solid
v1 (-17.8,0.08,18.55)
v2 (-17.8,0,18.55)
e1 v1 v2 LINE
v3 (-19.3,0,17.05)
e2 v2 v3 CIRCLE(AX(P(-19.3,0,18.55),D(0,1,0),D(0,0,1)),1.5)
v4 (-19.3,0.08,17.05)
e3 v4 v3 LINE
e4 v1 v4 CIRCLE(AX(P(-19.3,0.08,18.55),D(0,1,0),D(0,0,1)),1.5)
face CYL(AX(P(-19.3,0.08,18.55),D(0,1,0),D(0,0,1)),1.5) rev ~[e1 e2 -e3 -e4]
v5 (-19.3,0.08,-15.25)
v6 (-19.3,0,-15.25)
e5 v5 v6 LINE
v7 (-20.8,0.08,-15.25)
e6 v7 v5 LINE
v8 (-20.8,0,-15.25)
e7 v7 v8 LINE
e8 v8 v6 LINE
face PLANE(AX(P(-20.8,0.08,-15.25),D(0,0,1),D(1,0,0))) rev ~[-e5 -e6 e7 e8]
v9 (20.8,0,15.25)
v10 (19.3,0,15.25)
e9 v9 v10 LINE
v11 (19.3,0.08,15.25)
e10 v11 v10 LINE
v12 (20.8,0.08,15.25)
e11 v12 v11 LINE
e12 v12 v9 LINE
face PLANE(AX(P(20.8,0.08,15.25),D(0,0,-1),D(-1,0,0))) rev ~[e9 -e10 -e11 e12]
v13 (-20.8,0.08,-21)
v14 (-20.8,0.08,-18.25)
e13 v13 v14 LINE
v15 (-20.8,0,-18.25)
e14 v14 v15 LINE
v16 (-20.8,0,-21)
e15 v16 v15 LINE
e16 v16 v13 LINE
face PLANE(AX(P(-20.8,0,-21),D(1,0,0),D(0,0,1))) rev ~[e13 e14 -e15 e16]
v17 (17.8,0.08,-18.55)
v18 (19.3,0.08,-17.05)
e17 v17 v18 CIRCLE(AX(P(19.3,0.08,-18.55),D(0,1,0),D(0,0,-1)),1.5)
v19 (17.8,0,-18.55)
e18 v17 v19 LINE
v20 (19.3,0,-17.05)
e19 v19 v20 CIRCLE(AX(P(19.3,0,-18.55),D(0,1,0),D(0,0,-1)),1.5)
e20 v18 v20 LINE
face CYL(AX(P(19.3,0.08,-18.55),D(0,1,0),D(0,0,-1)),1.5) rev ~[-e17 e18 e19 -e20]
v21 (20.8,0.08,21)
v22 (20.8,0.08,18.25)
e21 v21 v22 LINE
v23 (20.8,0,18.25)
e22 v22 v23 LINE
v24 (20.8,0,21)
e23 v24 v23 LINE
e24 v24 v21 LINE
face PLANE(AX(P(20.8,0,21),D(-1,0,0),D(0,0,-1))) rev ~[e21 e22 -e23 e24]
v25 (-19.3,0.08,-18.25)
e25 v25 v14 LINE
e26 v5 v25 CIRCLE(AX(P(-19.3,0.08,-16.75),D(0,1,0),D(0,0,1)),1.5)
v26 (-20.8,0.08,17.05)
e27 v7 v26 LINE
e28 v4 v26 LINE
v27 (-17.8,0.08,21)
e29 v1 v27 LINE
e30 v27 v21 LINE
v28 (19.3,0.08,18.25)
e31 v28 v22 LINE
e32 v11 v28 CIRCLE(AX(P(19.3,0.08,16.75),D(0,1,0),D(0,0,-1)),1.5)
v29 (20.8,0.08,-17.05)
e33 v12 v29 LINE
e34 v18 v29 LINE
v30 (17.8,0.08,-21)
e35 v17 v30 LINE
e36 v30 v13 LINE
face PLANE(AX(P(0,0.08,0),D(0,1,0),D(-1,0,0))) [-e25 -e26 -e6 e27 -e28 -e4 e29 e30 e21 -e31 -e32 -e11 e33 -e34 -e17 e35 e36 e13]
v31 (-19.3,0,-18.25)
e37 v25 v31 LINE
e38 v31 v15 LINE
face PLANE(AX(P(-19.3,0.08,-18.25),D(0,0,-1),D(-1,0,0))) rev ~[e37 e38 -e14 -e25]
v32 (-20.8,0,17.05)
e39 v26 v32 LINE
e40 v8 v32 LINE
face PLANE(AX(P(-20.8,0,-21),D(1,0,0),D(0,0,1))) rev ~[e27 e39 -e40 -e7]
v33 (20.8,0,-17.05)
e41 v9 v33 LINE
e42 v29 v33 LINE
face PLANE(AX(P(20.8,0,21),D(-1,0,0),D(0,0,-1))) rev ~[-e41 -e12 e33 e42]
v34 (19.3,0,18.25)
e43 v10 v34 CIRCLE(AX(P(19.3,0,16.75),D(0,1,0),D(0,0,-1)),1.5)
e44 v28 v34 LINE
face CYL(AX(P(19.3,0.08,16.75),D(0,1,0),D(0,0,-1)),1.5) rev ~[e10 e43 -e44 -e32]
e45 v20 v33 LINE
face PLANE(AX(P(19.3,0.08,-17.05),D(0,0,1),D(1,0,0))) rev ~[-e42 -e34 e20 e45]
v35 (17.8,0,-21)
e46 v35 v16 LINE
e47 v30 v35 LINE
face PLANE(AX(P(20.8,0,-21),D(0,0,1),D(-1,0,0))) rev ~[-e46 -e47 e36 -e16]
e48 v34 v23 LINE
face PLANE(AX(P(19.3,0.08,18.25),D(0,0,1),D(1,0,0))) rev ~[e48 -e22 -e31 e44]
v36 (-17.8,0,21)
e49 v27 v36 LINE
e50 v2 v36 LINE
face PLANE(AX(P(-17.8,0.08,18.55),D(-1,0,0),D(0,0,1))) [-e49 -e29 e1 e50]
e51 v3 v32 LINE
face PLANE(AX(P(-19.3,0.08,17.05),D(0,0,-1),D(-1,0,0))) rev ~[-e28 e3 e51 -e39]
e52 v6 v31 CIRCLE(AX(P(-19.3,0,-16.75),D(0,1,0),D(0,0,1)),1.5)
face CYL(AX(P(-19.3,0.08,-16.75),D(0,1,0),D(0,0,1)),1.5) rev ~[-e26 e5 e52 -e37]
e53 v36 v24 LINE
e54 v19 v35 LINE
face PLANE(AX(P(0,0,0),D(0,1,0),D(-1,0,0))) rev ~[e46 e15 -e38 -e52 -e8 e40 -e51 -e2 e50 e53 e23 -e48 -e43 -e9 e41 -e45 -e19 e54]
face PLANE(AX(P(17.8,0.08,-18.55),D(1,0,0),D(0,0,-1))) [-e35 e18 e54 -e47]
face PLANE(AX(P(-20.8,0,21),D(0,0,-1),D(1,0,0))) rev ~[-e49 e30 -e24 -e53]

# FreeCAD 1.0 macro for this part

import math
import FreeCAD as App
import Part
import Sketcher
from FreeCAD import Vector
Q = App.Units.Quantity

doc = App.newDocument("Part")
params = doc.addObject("Spreadsheet::Sheet", "Params")
for row, (alias, value) in enumerate([
    ("sketch1_height", "42 mm"),
    ("sketch1_width", "41.6 mm"),
    ("pad1_length", "0.08 mm"),
    ("sketch2_radius", "1.5 mm"),
    ("sketch2_width", "1.5 mm"),
    ("pocket1_length", "0.08 mm"),
    ("sketch3_radius", "1.5 mm"),
    ("sketch3_width", "3 mm"),
    ("sketch3_height", "0.95 mm"),
    ("pocket2_length", "0.08 mm"),
], start=1):
    params.set(f"A{row}", alias)
    params.set(f"B{row}", "=" + value)
    params.setAlias(f"B{row}", alias)

body = doc.addObject("PartDesign::Body", "Body")

# Sketch on XZ plane
sketch1 = body.newObject("Sketcher::SketchObject", "Sketch")
sketch1.AttachmentSupport = (doc.getObject("XZ_Plane"), [""])
sketch1.MapMode = "FlatFace"
sketch1.addGeometry(Part.LineSegment(Vector(21, 21, 0), Vector(21, -21, 0)), False)
sketch1.addGeometry(Part.LineSegment(Vector(21, -21, 0), Vector(-21, -21, 0)), False)
sketch1.addGeometry(Part.LineSegment(Vector(-21, -21, 0), Vector(-21, 21, 0)), False)
sketch1.addGeometry(Part.LineSegment(Vector(-21, 21, 0), Vector(21, 21, 0)), False)
sketch1.addConstraint(Sketcher.Constraint("Coincident", 0, 2, 1, 1))
sketch1.addConstraint(Sketcher.Constraint("Coincident", 1, 2, 2, 1))
sketch1.addConstraint(Sketcher.Constraint("Coincident", 2, 2, 3, 1))
sketch1.addConstraint(Sketcher.Constraint("Coincident", 3, 2, 0, 1))
sketch1.addConstraint(Sketcher.Constraint("Vertical", 0))
sketch1.addConstraint(Sketcher.Constraint("Horizontal", 1))
sketch1.addConstraint(Sketcher.Constraint("Vertical", 2))
sketch1.addConstraint(Sketcher.Constraint("Horizontal", 3))
sketch1.addConstraint(Sketcher.Constraint("Symmetric", 0, 2, 2, 2, -1, 1))
sketch1.addConstraint(Sketcher.Constraint("DistanceY", 0, 2, 0, 1, Q("42 mm")))
sketch1.addConstraint(Sketcher.Constraint("DistanceX", 1, 2, 1, 1, Q("41.6 mm")))
sketch1.setExpression("Constraints[9]", "Params.sketch1_height")
sketch1.setExpression("Constraints[10]", "Params.sketch1_width")
pad1 = body.newObject("PartDesign::Pad", "Pad")
pad1.Profile = sketch1
pad1.setExpression("Length", "Params.pad1_length")
pad1.Reversed = True

# Sketch on XZ plane
sketch2 = body.newObject("Sketcher::SketchObject", "Sketch001")
sketch2.AttachmentSupport = (doc.getObject("XZ_Plane"), [""])
sketch2.MapMode = "FlatFace"
sketch2.AttachmentOffset = App.Placement(Vector(0, 0, -0.08), App.Rotation())
sketch2.addGeometry(Part.LineSegment(Vector(-19.3, -18.2, 0), Vector(-20.8, -18.2, 0)), False)
sketch2.addGeometry(Part.LineSegment(Vector(-20.8, -18.2, 0), Vector(-20.8, -15.2, 0)), False)
sketch2.addGeometry(Part.LineSegment(Vector(-20.8, -15.2, 0), Vector(-19.3, -15.2, 0)), False)
sketch2.addGeometry(Part.ArcOfCircle(Part.Circle(Vector(-19.3, -16.8, 0), Vector(0, 0, 1), 1.5), math.radians(-90), math.radians(90)), False)
sketch2.addGeometry(Part.LineSegment(Vector(20.8, -17.1, 0), Vector(20.8, -20.1, 0)), False)
sketch2.addGeometry(Part.LineSegment(Vector(20.8, -20.1, 0), Vector(19.3, -20.1, 0)), False)
sketch2.addGeometry(Part.ArcOfCircle(Part.Circle(Vector(19.3, -18.6, 0), Vector(0, 0, 1), 1.5), math.radians(90), math.radians(270)), False)
sketch2.addGeometry(Part.LineSegment(Vector(19.3, -17.1, 0), Vector(20.8, -17.1, 0)), False)
sketch2.addGeometry(Part.LineSegment(Vector(-19.3, 17.1, 0), Vector(-20.8, 17.1, 0)), False)
sketch2.addGeometry(Part.LineSegment(Vector(-20.8, 17.1, 0), Vector(-20.8, 20.1, 0)), False)
sketch2.addGeometry(Part.LineSegment(Vector(-20.8, 20.1, 0), Vector(-19.3, 20.1, 0)), False)
sketch2.addGeometry(Part.ArcOfCircle(Part.Circle(Vector(-19.3, 18.6, 0), Vector(0, 0, 1), 1.5), math.radians(-90), math.radians(90)), False)
sketch2.addGeometry(Part.LineSegment(Vector(20.8, 18.2, 0), Vector(20.8, 15.2, 0)), False)
sketch2.addGeometry(Part.LineSegment(Vector(20.8, 15.2, 0), Vector(19.3, 15.2, 0)), False)
sketch2.addGeometry(Part.ArcOfCircle(Part.Circle(Vector(19.3, 16.8, 0), Vector(0, 0, 1), 1.5), math.radians(90), math.radians(270)), False)
sketch2.addGeometry(Part.LineSegment(Vector(19.3, 18.2, 0), Vector(20.8, 18.2, 0)), False)
sketch2.addConstraint(Sketcher.Constraint("Coincident", 0, 2, 1, 1))
sketch2.addConstraint(Sketcher.Constraint("Coincident", 1, 2, 2, 1))
sketch2.addConstraint(Sketcher.Constraint("Tangent", 2, 2, 3, 2))
sketch2.addConstraint(Sketcher.Constraint("Tangent", 3, 1, 0, 1))
sketch2.addConstraint(Sketcher.Constraint("Coincident", 4, 2, 5, 1))
sketch2.addConstraint(Sketcher.Constraint("Tangent", 5, 2, 6, 2))
sketch2.addConstraint(Sketcher.Constraint("Tangent", 6, 1, 7, 1))
sketch2.addConstraint(Sketcher.Constraint("Coincident", 7, 2, 4, 1))
sketch2.addConstraint(Sketcher.Constraint("Coincident", 8, 2, 9, 1))
sketch2.addConstraint(Sketcher.Constraint("Coincident", 9, 2, 10, 1))
sketch2.addConstraint(Sketcher.Constraint("Tangent", 10, 2, 11, 2))
sketch2.addConstraint(Sketcher.Constraint("Tangent", 11, 1, 8, 1))
sketch2.addConstraint(Sketcher.Constraint("Coincident", 12, 2, 13, 1))
sketch2.addConstraint(Sketcher.Constraint("Tangent", 13, 2, 14, 2))
sketch2.addConstraint(Sketcher.Constraint("Tangent", 14, 1, 15, 1))
sketch2.addConstraint(Sketcher.Constraint("Coincident", 15, 2, 12, 1))
sketch2.addConstraint(Sketcher.Constraint("Horizontal", 0))
sketch2.addConstraint(Sketcher.Constraint("Vertical", 1))
sketch2.addConstraint(Sketcher.Constraint("Horizontal", 2))
sketch2.addConstraint(Sketcher.Constraint("Vertical", 4))
sketch2.addConstraint(Sketcher.Constraint("Horizontal", 5))
sketch2.addConstraint(Sketcher.Constraint("Horizontal", 7))
sketch2.addConstraint(Sketcher.Constraint("Horizontal", 8))
sketch2.addConstraint(Sketcher.Constraint("Vertical", 9))
sketch2.addConstraint(Sketcher.Constraint("Horizontal", 10))
sketch2.addConstraint(Sketcher.Constraint("Vertical", 12))
sketch2.addConstraint(Sketcher.Constraint("Horizontal", 13))
sketch2.addConstraint(Sketcher.Constraint("Horizontal", 15))
sketch2.addConstraint(Sketcher.Constraint("Equal", 3, 6))
sketch2.addConstraint(Sketcher.Constraint("Equal", 6, 11))
sketch2.addConstraint(Sketcher.Constraint("Equal", 11, 14))
sketch2.addConstraint(Sketcher.Constraint("Symmetric", 6, 3, 11, 3, -1, 1))
sketch2.addConstraint(Sketcher.Constraint("Symmetric", 3, 3, 14, 3, -1, 1))
sketch2.addConstraint(Sketcher.Constraint("Vertical", 3, 3, 11, 3))
sketch2.addConstraint(Sketcher.Constraint("Vertical", 1, 2, 8, 2))
sketch2.addConstraint(Sketcher.Constraint("Vertical", 7, 2, 12, 2))
sketch2.addConstraint(Sketcher.Constraint("Equal", 2, 5))
sketch2.addConstraint(Sketcher.Constraint("Radius", 3, Q("1.5 mm")))
sketch2.addConstraint(Sketcher.Constraint("DistanceX", 0, 2, 0, 1, Q("1.5 mm")))
sketch2.addConstraint(Sketcher.Constraint("DistanceX", 0, 2, -1, 1, Q("20.8 mm")))
sketch2.addConstraint(Sketcher.Constraint("DistanceY", 0, 2, 14, 3, Q("35 mm")))
sketch2.addConstraint(Sketcher.Constraint("DistanceY", 6, 3, 3, 3, Q("1.8 mm")))
sketch2.setExpression("Constraints[37]", "Params.sketch2_radius")
sketch2.setExpression("Constraints[38]", "Params.sketch2_width")
pocket1 = body.newObject("PartDesign::Pocket", "Pocket")
pocket1.Profile = sketch2
pocket1.setExpression("Length", "Params.pocket1_length")
pocket1.Reversed = True

# Sketch on XZ plane
sketch3 = body.newObject("Sketcher::SketchObject", "Sketch002")
sketch3.AttachmentSupport = (doc.getObject("XZ_Plane"), [""])
sketch3.MapMode = "FlatFace"
sketch3.AttachmentOffset = App.Placement(Vector(0, 0, -0.08), App.Rotation())
sketch3.addGeometry(Part.ArcOfCircle(Part.Circle(Vector(19.3, -18.6, 0), Vector(0, 0, 1), 1.5), math.radians(180), math.radians(270)), False)
sketch3.addGeometry(Part.LineSegment(Vector(19.3, -20.1, 0), Vector(20.8, -20.1, 0)), False)
sketch3.addGeometry(Part.LineSegment(Vector(20.8, -20.1, 0), Vector(20.8, -21, 0)), False)
sketch3.addGeometry(Part.LineSegment(Vector(20.8, -21, 0), Vector(17.8, -21, 0)), False)
sketch3.addGeometry(Part.LineSegment(Vector(17.8, -21, 0), Vector(17.8, -18.6, 0)), False)
sketch3.addGeometry(Part.ArcOfCircle(Part.Circle(Vector(-19.3, 18.6, 0), Vector(0, 0, 1), 1.5), math.radians(0), math.radians(90)), False)
sketch3.addGeometry(Part.LineSegment(Vector(-19.3, 20.1, 0), Vector(-20.8, 20.1, 0)), False)
sketch3.addGeometry(Part.LineSegment(Vector(-20.8, 20.1, 0), Vector(-20.8, 21, 0)), False)
sketch3.addGeometry(Part.LineSegment(Vector(-20.8, 21, 0), Vector(-17.8, 21, 0)), False)
sketch3.addGeometry(Part.LineSegment(Vector(-17.8, 21, 0), Vector(-17.8, 18.6, 0)), False)
sketch3.addConstraint(Sketcher.Constraint("Tangent", 0, 2, 1, 1))
sketch3.addConstraint(Sketcher.Constraint("Coincident", 1, 2, 2, 1))
sketch3.addConstraint(Sketcher.Constraint("Coincident", 2, 2, 3, 1))
sketch3.addConstraint(Sketcher.Constraint("Coincident", 3, 2, 4, 1))
sketch3.addConstraint(Sketcher.Constraint("Tangent", 4, 2, 0, 1))
sketch3.addConstraint(Sketcher.Constraint("Tangent", 5, 2, 6, 1))
sketch3.addConstraint(Sketcher.Constraint("Coincident", 6, 2, 7, 1))
sketch3.addConstraint(Sketcher.Constraint("Coincident", 7, 2, 8, 1))
sketch3.addConstraint(Sketcher.Constraint("Coincident", 8, 2, 9, 1))
sketch3.addConstraint(Sketcher.Constraint("Tangent", 9, 2, 5, 1))
sketch3.addConstraint(Sketcher.Constraint("Horizontal", 1))
sketch3.addConstraint(Sketcher.Constraint("Vertical", 2))
sketch3.addConstraint(Sketcher.Constraint("Horizontal", 3))
sketch3.addConstraint(Sketcher.Constraint("Vertical", 4))
sketch3.addConstraint(Sketcher.Constraint("Horizontal", 6))
sketch3.addConstraint(Sketcher.Constraint("Vertical", 7))
sketch3.addConstraint(Sketcher.Constraint("Horizontal", 8))
sketch3.addConstraint(Sketcher.Constraint("Vertical", 9))
sketch3.addConstraint(Sketcher.Constraint("Equal", 0, 5))
sketch3.addConstraint(Sketcher.Constraint("Symmetric", 0, 3, 5, 3, -1, 1))
sketch3.addConstraint(Sketcher.Constraint("Symmetric", 2, 2, 7, 2, -1, 1))
sketch3.addConstraint(Sketcher.Constraint("Radius", 0, Q("1.5 mm")))
sketch3.addConstraint(Sketcher.Constraint("DistanceX", 3, 2, 3, 1, Q("3 mm")))
sketch3.addConstraint(Sketcher.Constraint("DistanceY", 2, 2, -1, 1, Q("21 mm")))
sketch3.addConstraint(Sketcher.Constraint("DistanceY", 2, 2, 2, 1, Q("0.95 mm")))
sketch3.addConstraint(Sketcher.Constraint("DistanceX", -1, 1, 0, 3, Q("19.3 mm")))
sketch3.setExpression("Constraints[21]", "Params.sketch3_radius")
sketch3.setExpression("Constraints[22]", "Params.sketch3_width")
sketch3.setExpression("Constraints[24]", "Params.sketch3_height")
pocket2 = body.newObject("PartDesign::Pocket", "Pocket001")
pocket2.Profile = sketch3
pocket2.setExpression("Length", "Params.pocket2_length")
pocket2.Reversed = True

doc.recompute()
